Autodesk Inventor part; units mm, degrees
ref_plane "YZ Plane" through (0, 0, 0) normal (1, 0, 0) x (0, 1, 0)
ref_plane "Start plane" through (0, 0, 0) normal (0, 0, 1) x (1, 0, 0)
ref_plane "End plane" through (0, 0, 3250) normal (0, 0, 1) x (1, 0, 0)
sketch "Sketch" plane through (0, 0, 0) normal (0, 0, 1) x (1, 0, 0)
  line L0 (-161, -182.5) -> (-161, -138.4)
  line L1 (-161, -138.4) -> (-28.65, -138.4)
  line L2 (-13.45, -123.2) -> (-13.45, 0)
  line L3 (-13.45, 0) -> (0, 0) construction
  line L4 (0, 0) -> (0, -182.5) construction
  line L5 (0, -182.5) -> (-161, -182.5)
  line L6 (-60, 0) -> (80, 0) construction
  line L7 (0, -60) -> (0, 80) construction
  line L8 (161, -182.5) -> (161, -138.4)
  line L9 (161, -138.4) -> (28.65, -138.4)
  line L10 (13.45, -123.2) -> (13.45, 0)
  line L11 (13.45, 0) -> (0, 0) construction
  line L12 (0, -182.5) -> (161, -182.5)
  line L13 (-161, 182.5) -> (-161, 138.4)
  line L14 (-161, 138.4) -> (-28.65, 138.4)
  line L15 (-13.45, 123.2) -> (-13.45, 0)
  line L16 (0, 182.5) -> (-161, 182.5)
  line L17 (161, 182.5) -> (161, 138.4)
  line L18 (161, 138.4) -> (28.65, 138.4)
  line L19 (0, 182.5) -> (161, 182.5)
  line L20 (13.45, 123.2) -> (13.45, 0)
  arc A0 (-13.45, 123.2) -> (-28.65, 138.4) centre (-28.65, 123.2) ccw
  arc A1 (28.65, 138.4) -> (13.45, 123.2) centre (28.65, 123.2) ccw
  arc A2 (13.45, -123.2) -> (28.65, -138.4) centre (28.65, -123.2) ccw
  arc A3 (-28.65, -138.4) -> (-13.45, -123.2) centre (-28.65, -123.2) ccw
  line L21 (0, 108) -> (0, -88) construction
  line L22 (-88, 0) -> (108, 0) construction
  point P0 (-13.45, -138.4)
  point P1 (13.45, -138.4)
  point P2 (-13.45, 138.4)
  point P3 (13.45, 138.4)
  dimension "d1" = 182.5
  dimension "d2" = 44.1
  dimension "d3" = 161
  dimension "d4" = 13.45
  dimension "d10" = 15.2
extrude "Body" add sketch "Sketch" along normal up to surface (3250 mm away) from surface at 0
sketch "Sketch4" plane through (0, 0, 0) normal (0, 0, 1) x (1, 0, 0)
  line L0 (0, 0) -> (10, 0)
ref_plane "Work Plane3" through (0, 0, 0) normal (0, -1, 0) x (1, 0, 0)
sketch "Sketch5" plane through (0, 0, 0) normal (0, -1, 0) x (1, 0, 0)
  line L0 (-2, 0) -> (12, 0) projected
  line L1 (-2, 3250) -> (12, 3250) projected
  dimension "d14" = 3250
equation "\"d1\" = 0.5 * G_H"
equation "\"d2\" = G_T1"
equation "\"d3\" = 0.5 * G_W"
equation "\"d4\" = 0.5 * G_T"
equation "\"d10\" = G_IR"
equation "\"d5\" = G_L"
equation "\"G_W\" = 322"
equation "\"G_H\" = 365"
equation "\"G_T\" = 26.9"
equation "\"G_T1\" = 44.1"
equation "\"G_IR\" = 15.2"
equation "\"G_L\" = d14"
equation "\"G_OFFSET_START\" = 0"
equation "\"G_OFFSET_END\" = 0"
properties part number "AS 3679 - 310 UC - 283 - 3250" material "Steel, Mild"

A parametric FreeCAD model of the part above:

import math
import FreeCAD as App
import Part
import Sketcher
Q = App.Units.Quantity

doc = App.newDocument("Part")
params = doc.addObject("Spreadsheet::Sheet", "Params")
for row, (alias, value) in enumerate([
    ("sketch1_radius", "15.2 mm"),
    ("sketch1_height", "44.1 mm"),
    ("pad1_length", "3250 mm"),
], start=1):
    params.set(f"A{row}", alias)
    params.set(f"B{row}", "=" + value)
    params.setAlias(f"B{row}", alias)

body = doc.addObject("PartDesign::Body", "Body")

sketch1 = doc.addObject("Sketcher::SketchObject", "Sketch")
body.addObject(sketch1)
sketch1.AttachmentSupport = (doc.XY_Plane, [""])
sketch1.MapMode = "FlatFace"
sketch1.addGeometry(Part.LineSegment(App.Vector(-161, -138, 0), App.Vector(-161, -182, 0)), False)
sketch1.addGeometry(Part.LineSegment(App.Vector(-161, -182, 0), App.Vector(161, -182, 0)), False)
sketch1.addGeometry(Part.LineSegment(App.Vector(161, -182, 0), App.Vector(161, -138, 0)), False)
sketch1.addGeometry(Part.LineSegment(App.Vector(161, -138, 0), App.Vector(29, -138, 0)), False)
sketch1.addGeometry(Part.ArcOfCircle(Part.Circle(App.Vector(29, -123, 0), App.Vector(0, 0, 1), 15), math.radians(180), math.radians(270)), False)
sketch1.addGeometry(Part.LineSegment(App.Vector(13, -123, 0), App.Vector(13, 123, 0)), False)
sketch1.addGeometry(Part.ArcOfCircle(Part.Circle(App.Vector(29, 123, 0), App.Vector(0, 0, 1), 15), math.radians(90), math.radians(180)), False)
sketch1.addGeometry(Part.LineSegment(App.Vector(29, 138, 0), App.Vector(161, 138, 0)), False)
sketch1.addGeometry(Part.LineSegment(App.Vector(161, 138, 0), App.Vector(161, 182, 0)), False)
sketch1.addGeometry(Part.LineSegment(App.Vector(161, 182, 0), App.Vector(-161, 182, 0)), False)
sketch1.addGeometry(Part.LineSegment(App.Vector(-161, 182, 0), App.Vector(-161, 138, 0)), False)
sketch1.addGeometry(Part.LineSegment(App.Vector(-161, 138, 0), App.Vector(-29, 138, 0)), False)
sketch1.addGeometry(Part.ArcOfCircle(Part.Circle(App.Vector(-29, 123, 0), App.Vector(0, 0, 1), 15), math.radians(0), math.radians(90)), False)
sketch1.addGeometry(Part.LineSegment(App.Vector(-13, 123, 0), App.Vector(-13, -123, 0)), False)
sketch1.addGeometry(Part.ArcOfCircle(Part.Circle(App.Vector(-29, -123, 0), App.Vector(0, 0, 1), 15), math.radians(-90), math.radians(0)), False)
sketch1.addGeometry(Part.LineSegment(App.Vector(-29, -138, 0), App.Vector(-161, -138, 0)), False)
sketch1.addConstraint(Sketcher.Constraint("Coincident", 0, 2, 1, 1))
sketch1.addConstraint(Sketcher.Constraint("Coincident", 1, 2, 2, 1))
sketch1.addConstraint(Sketcher.Constraint("Coincident", 2, 2, 3, 1))
sketch1.addConstraint(Sketcher.Constraint("Tangent", 3, 2, 4, 2))
sketch1.addConstraint(Sketcher.Constraint("Tangent", 4, 1, 5, 1))
sketch1.addConstraint(Sketcher.Constraint("Tangent", 5, 2, 6, 2))
sketch1.addConstraint(Sketcher.Constraint("Tangent", 6, 1, 7, 1))
sketch1.addConstraint(Sketcher.Constraint("Coincident", 7, 2, 8, 1))
sketch1.addConstraint(Sketcher.Constraint("Coincident", 8, 2, 9, 1))
sketch1.addConstraint(Sketcher.Constraint("Coincident", 9, 2, 10, 1))
sketch1.addConstraint(Sketcher.Constraint("Coincident", 10, 2, 11, 1))
sketch1.addConstraint(Sketcher.Constraint("Tangent", 11, 2, 12, 2))
sketch1.addConstraint(Sketcher.Constraint("Tangent", 12, 1, 13, 1))
sketch1.addConstraint(Sketcher.Constraint("Tangent", 13, 2, 14, 2))
sketch1.addConstraint(Sketcher.Constraint("Tangent", 14, 1, 15, 1))
sketch1.addConstraint(Sketcher.Constraint("Coincident", 15, 2, 0, 1))
sketch1.addConstraint(Sketcher.Constraint("Vertical", 0))
sketch1.addConstraint(Sketcher.Constraint("Horizontal", 1))
sketch1.addConstraint(Sketcher.Constraint("Vertical", 2))
sketch1.addConstraint(Sketcher.Constraint("Horizontal", 3))
sketch1.addConstraint(Sketcher.Constraint("Vertical", 5))
sketch1.addConstraint(Sketcher.Constraint("Horizontal", 7))
sketch1.addConstraint(Sketcher.Constraint("Vertical", 8))
sketch1.addConstraint(Sketcher.Constraint("Horizontal", 9))
sketch1.addConstraint(Sketcher.Constraint("Vertical", 10))
sketch1.addConstraint(Sketcher.Constraint("Horizontal", 11))
sketch1.addConstraint(Sketcher.Constraint("Vertical", 13))
sketch1.addConstraint(Sketcher.Constraint("Horizontal", 15))
sketch1.addConstraint(Sketcher.Constraint("Equal", 4, 6))
sketch1.addConstraint(Sketcher.Constraint("Equal", 6, 12))
sketch1.addConstraint(Sketcher.Constraint("Equal", 12, 14))
sketch1.addConstraint(Sketcher.Constraint("Symmetric", 4, 3, 12, 3, -1, 1))
sketch1.addConstraint(Sketcher.Constraint("Symmetric", 0, 2, 8, 2, -1, 1))
sketch1.addConstraint(Sketcher.Constraint("Symmetric", 7, 2, 10, 2, -2))
sketch1.addConstraint(Sketcher.Constraint("Symmetric", 2, 2, 15, 2, -2))
sketch1.addConstraint(Sketcher.Constraint("Radius", 4, Q("15.2 mm")))
sketch1.addConstraint(Sketcher.Constraint("DistanceY", 0, 2, 0, 1, Q("44.1 mm")))
sketch1.addConstraint(Sketcher.Constraint("DistanceX", 0, 2, -1, 1, Q("161 mm")))
sketch1.addConstraint(Sketcher.Constraint("DistanceY", 0, 2, -1, 1, Q("182.5 mm")))
sketch1.addConstraint(Sketcher.Constraint("DistanceX", -1, 1, 4, 1, Q("13.45 mm")))
sketch1.setExpression("Constraints[35]", "Params.sketch1_radius")
sketch1.setExpression("Constraints[36]", "Params.sketch1_height")
pad1 = doc.addObject("PartDesign::Pad", "Pad")
body.addObject(pad1)
pad1.Profile = sketch1
pad1.setExpression("Length", "Params.pad1_length")

doc.recompute()
